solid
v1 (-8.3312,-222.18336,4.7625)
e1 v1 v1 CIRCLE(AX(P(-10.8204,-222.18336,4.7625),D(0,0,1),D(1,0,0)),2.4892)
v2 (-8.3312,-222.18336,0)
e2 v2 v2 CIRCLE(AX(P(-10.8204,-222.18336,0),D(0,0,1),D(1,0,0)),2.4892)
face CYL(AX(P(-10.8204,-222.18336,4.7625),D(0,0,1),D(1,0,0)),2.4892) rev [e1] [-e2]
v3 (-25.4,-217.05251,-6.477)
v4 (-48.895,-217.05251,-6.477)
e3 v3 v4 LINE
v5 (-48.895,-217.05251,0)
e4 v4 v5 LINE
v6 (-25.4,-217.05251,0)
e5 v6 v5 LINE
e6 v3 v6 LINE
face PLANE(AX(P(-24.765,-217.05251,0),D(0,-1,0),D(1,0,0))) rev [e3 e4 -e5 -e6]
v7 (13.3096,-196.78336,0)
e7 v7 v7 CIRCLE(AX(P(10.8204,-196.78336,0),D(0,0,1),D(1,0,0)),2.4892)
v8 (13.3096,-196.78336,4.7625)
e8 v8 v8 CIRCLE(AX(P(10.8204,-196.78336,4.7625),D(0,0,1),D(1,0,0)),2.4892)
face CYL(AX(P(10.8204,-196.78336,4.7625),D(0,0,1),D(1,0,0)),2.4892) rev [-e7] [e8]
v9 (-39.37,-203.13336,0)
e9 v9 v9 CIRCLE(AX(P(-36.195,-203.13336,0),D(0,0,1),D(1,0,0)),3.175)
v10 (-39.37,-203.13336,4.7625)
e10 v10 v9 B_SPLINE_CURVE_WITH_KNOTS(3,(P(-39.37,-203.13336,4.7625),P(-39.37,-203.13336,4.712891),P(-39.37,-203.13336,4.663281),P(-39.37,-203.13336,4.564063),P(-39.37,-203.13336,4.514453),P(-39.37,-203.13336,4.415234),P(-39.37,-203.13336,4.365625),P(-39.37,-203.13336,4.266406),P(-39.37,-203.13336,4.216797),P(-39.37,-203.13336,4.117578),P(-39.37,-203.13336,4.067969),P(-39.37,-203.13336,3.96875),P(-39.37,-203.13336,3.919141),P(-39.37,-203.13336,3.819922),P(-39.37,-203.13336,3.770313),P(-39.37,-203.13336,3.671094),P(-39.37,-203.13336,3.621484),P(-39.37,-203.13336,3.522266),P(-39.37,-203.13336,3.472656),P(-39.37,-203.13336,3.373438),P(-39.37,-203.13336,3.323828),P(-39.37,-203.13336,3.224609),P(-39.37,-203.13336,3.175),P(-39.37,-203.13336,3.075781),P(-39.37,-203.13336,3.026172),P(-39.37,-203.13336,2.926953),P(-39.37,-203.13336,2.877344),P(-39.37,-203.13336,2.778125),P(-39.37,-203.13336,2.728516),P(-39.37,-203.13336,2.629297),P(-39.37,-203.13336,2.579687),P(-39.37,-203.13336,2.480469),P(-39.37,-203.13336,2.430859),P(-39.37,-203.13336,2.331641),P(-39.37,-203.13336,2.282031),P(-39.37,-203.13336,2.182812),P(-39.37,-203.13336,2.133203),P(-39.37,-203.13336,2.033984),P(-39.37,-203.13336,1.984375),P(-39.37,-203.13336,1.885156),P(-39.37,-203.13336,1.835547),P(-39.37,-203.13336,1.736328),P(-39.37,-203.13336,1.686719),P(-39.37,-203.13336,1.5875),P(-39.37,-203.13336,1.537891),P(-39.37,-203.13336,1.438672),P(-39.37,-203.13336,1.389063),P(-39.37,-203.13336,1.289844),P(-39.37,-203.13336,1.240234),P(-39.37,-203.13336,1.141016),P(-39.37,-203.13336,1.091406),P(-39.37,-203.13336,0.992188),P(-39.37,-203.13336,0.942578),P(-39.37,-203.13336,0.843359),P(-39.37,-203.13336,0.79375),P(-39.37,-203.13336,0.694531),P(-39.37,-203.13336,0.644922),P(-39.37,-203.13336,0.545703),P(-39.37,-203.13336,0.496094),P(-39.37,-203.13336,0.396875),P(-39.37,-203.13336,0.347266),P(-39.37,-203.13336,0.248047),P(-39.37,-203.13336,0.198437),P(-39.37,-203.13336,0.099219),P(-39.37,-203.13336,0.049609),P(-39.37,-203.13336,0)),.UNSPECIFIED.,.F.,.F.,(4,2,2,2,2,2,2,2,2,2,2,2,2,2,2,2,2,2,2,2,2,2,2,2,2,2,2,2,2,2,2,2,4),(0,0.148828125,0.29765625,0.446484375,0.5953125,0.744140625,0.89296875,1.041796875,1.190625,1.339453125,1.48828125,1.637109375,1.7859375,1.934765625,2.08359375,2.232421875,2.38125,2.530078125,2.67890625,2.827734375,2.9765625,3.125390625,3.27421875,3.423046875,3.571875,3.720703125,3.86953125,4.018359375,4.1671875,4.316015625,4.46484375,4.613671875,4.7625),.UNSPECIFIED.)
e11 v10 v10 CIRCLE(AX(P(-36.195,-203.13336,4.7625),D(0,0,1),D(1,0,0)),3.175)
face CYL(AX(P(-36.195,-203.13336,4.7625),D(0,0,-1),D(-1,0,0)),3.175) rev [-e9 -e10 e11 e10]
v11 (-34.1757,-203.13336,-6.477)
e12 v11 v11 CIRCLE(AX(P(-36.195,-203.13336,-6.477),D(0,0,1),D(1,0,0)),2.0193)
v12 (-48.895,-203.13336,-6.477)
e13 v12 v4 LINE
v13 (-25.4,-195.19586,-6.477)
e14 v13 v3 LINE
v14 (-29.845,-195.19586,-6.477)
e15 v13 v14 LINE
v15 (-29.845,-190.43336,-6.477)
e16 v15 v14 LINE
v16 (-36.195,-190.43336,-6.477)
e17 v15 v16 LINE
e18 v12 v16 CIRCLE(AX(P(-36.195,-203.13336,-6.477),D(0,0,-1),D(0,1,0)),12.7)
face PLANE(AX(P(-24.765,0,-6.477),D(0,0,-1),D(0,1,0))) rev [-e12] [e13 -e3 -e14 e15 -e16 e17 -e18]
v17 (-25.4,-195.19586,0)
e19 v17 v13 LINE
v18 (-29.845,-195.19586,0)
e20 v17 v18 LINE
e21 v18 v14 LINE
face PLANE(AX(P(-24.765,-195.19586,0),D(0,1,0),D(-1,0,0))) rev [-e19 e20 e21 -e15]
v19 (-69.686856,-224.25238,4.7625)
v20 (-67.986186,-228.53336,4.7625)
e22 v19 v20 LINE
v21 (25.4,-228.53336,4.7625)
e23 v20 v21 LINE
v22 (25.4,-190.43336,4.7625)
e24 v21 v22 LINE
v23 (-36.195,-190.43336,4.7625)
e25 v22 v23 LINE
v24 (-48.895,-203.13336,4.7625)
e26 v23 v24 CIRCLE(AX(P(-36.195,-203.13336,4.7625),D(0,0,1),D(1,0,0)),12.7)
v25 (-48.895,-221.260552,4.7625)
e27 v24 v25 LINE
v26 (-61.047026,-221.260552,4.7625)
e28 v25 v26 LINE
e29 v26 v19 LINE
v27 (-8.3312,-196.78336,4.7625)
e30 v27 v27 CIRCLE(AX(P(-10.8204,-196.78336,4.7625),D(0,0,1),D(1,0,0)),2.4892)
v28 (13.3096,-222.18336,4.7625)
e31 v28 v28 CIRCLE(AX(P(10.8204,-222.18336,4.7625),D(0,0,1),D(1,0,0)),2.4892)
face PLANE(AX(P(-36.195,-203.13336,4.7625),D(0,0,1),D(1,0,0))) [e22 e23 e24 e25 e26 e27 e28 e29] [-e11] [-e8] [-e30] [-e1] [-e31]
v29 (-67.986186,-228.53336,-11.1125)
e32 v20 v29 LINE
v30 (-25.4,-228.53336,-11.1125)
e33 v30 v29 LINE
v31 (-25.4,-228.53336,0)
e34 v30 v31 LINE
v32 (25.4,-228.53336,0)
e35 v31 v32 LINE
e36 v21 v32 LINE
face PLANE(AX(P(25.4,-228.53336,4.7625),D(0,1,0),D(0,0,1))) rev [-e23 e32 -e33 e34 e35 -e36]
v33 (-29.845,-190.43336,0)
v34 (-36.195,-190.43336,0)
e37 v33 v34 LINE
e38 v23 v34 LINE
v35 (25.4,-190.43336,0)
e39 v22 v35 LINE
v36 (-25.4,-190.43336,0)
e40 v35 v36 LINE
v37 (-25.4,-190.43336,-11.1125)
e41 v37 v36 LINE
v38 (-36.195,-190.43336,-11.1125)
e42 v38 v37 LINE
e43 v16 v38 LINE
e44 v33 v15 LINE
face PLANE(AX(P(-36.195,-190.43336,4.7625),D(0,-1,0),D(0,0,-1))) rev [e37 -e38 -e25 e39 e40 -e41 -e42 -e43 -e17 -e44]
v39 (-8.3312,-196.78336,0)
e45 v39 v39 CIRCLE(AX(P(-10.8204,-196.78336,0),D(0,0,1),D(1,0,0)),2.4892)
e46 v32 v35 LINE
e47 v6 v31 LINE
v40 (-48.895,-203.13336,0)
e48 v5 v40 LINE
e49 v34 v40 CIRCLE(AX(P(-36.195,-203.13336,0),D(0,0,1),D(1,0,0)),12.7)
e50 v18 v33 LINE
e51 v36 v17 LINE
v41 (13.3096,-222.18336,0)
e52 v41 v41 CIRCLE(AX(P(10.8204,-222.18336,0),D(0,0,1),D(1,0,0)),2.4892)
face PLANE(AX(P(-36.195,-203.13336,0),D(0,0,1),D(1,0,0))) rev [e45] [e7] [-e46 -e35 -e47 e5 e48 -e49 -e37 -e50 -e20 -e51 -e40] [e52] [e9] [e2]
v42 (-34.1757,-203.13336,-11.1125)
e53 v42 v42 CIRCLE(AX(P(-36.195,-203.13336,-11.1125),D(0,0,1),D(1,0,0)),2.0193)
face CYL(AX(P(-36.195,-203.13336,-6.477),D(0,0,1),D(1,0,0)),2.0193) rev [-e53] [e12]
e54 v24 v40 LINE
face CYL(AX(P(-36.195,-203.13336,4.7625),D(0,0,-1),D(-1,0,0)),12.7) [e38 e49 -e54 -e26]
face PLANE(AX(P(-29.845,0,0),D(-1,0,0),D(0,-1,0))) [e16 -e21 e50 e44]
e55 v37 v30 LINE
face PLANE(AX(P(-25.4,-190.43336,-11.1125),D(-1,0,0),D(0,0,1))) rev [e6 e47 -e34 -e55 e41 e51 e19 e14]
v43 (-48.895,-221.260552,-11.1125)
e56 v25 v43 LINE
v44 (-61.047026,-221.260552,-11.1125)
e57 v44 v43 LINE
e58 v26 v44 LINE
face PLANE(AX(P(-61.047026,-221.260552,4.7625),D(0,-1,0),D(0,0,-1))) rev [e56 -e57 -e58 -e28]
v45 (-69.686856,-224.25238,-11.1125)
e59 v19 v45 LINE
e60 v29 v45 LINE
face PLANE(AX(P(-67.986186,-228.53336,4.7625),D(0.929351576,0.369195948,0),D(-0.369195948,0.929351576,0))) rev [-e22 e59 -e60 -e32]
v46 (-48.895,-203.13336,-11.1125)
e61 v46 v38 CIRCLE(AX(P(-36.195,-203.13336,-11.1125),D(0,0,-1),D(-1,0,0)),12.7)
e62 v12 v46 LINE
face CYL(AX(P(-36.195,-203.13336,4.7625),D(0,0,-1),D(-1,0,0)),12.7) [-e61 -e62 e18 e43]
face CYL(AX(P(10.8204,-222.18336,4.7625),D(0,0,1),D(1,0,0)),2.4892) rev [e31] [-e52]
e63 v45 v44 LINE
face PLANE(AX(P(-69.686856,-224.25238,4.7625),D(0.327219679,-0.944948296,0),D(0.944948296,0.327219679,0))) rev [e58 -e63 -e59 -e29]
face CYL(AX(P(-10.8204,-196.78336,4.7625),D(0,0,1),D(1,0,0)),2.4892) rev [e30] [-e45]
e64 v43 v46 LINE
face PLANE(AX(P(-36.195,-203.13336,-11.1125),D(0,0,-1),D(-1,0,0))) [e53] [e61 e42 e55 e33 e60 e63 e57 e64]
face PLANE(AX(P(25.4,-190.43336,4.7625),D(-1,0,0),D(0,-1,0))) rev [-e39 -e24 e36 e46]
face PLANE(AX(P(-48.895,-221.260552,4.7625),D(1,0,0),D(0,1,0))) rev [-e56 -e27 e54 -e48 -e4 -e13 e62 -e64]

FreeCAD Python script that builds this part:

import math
import FreeCAD as App
import Part
import Sketcher

V = App.Vector
Q = App.Units.Quantity


def add_polygon(sketch, points):
    """Adds a closed chain of lines whose ends are joined by coincident constraints."""
    first, n = sketch.GeometryCount, len(points)
    for a, b in zip(points, points[1:] + points[:1]):
        sketch.addGeometry(Part.LineSegment(App.Vector(*a, 0), App.Vector(*b, 0)), False)
    for i in range(n):
        sketch.addConstraint(Sketcher.Constraint("Coincident", first + i, 2, first + (i + 1) % n, 1))

doc = App.newDocument("Part")
params = doc.addObject("Spreadsheet::Sheet", "Params")
for row, (alias, value) in enumerate([
    ("sketch1_radius", "0.5 in"),
    ("sketch1_diameter", "0.25 in"),
    ("sketch1_height", "1.5 in"),
    ("sketch1_width", "2.425 in"),
    ("pad1_length", "0.1875 in"),
    ("sketch2_radius", "0.5 in"),
    ("sketch2_height", "1.5 in"),
    ("sketch2_width", "0.425 in"),
    ("pad2_length", "0.4375 in"),
    ("sketch3_height", "0.255 in"),
    ("pocket1_length", "0.95 in"),
    ("sketch4_width", "0.1875 in"),
    ("sketch4_height", "0.255 in"),
    ("pocket2_length", "0.75 in"),
    ("sketch5_diameter", "0.159 in"),
    ("hole_diameter", "0.159 in"),
    ("sketch6_diameter", "0.196 in"),
    ("hole2_diameter", "0.196 in"),
], start=1):
    params.set(f"A{row}", alias)
    params.set(f"B{row}", "=" + value)
    params.setAlias(f"B{row}", alias)

body = doc.addObject("PartDesign::Body", "Body")

# Sketch on XY plane
sketch1 = doc.addObject("Sketcher::SketchObject", "Sketch")
body.addObject(sketch1)
sketch1.AttachmentSupport = (doc.XY_Plane, [""])
sketch1.MapMode = "FlatFace"
sketch1.addGeometry(Part.LineSegment(V(-69.686856, -224.25238, 0), V(-67.986186, -228.53336, 0)), False)
sketch1.addGeometry(Part.LineSegment(V(-67.986186, -228.53336, 0), V(25.4, -228.53336, 0)), False)
sketch1.addGeometry(Part.LineSegment(V(25.4, -228.53336, 0), V(25.4, -190.43336, 0)), False)
sketch1.addGeometry(Part.LineSegment(V(25.4, -190.43336, 0), V(-36.195, -190.43336, 0)), False)
sketch1.addGeometry(Part.ArcOfCircle(Part.Circle(V(-36.195, -203.13336, 0), V(0, 0, 1), 12.7), math.radians(90), math.radians(180)), False)
sketch1.addGeometry(Part.LineSegment(V(-48.895, -203.13336, 0), V(-48.895, -221.260552, 0)), False)
sketch1.addGeometry(Part.LineSegment(V(-48.895, -221.260552, 0), V(-61.047026, -221.260552, 0)), False)
sketch1.addGeometry(Part.LineSegment(V(-61.047026, -221.260552, 0), V(-69.686856, -224.25238, 0)), False)
sketch1.addGeometry(Part.Circle(V(-36.195, -203.13336, 0), V(0, 0, 1), 3.175), False)
sketch1.addConstraint(Sketcher.Constraint("Coincident", 0, 2, 1, 1))
sketch1.addConstraint(Sketcher.Constraint("Coincident", 1, 2, 2, 1))
sketch1.addConstraint(Sketcher.Constraint("Coincident", 2, 2, 3, 1))
sketch1.addConstraint(Sketcher.Constraint("Tangent", 3, 2, 4, 1))
sketch1.addConstraint(Sketcher.Constraint("Tangent", 4, 2, 5, 1))
sketch1.addConstraint(Sketcher.Constraint("Coincident", 5, 2, 6, 1))
sketch1.addConstraint(Sketcher.Constraint("Coincident", 6, 2, 7, 1))
sketch1.addConstraint(Sketcher.Constraint("Coincident", 7, 2, 0, 1))
sketch1.addConstraint(Sketcher.Constraint("Horizontal", 1))
sketch1.addConstraint(Sketcher.Constraint("Vertical", 2))
sketch1.addConstraint(Sketcher.Constraint("Horizontal", 3))
sketch1.addConstraint(Sketcher.Constraint("Vertical", 5))
sketch1.addConstraint(Sketcher.Constraint("Horizontal", 6))
sketch1.addConstraint(Sketcher.Constraint("Coincident", 8, 3, 4, 3))
sketch1.addConstraint(Sketcher.Constraint("Radius", 4, Q("0.5 in")))
sketch1.addConstraint(Sketcher.Constraint("Diameter", 8, Q("0.25 in")))
sketch1.addConstraint(Sketcher.Constraint("DistanceY", 2, 1, 2, 2, Q("1.5 in")))
sketch1.addConstraint(Sketcher.Constraint("DistanceX", -1, 1, 1, 2, Q("1 in")))
sketch1.addConstraint(Sketcher.Constraint("DistanceX", 3, 2, 3, 1, Q("2.425 in")))
sketch1.addConstraint(Sketcher.Constraint("Distance", 7, Q("9.143178 mm")))
sketch1.addConstraint(Sketcher.Constraint("DistanceX", 1, 1, 1, 2, Q("93.386186 mm")))
sketch1.addConstraint(Sketcher.Constraint("DistanceX", 6, 2, 6, 1, Q("12.152026 mm")))
sketch1.addConstraint(Sketcher.Constraint("DistanceY", 5, 2, 5, 1, Q("18.127192 mm")))
sketch1.addConstraint(Sketcher.Constraint("DistanceY", 4, 3, -1, 1, Q("203.13336 mm")))
sketch1.addConstraint(Sketcher.Constraint("DistanceY", 7, 2, -1, 1, Q("224.25238 mm")))
sketch1.setExpression("Constraints[14]", "Params.sketch1_radius")
sketch1.setExpression("Constraints[15]", "Params.sketch1_diameter")
sketch1.setExpression("Constraints[16]", "Params.sketch1_height")
sketch1.setExpression("Constraints[18]", "Params.sketch1_width")
pad1 = doc.addObject("PartDesign::Pad", "Pad")
body.addObject(pad1)
pad1.Profile = sketch1
pad1.setExpression("Length", "Params.pad1_length")

# Sketch on XY plane
sketch2 = doc.addObject("Sketcher::SketchObject", "Sketch001")
body.addObject(sketch2)
sketch2.AttachmentSupport = (doc.XY_Plane, [""])
sketch2.MapMode = "FlatFace"
sketch2.AttachmentOffset = App.Placement(V(0, 0, -0.4375 * 25.4), App.Rotation())
sketch2.addGeometry(Part.LineSegment(V(-25.4, -190.43336, 0), V(-25.4, -228.53336, 0)), False)
sketch2.addGeometry(Part.LineSegment(V(-25.4, -228.53336, 0), V(-67.986186, -228.53336, 0)), False)
sketch2.addGeometry(Part.LineSegment(V(-67.986186, -228.53336, 0), V(-69.686856, -224.25238, 0)), False)
sketch2.addGeometry(Part.LineSegment(V(-69.686856, -224.25238, 0), V(-61.047026, -221.260552, 0)), False)
sketch2.addGeometry(Part.LineSegment(V(-61.047026, -221.260552, 0), V(-48.895, -221.260552, 0)), False)
sketch2.addGeometry(Part.LineSegment(V(-48.895, -221.260552, 0), V(-48.895, -203.13336, 0)), False)
sketch2.addGeometry(Part.ArcOfCircle(Part.Circle(V(-36.195, -203.13336, 0), V(0, 0, 1), 12.7), math.radians(90), math.radians(180)), False)
sketch2.addGeometry(Part.LineSegment(V(-36.195, -190.43336, 0), V(-25.4, -190.43336, 0)), False)
sketch2.addConstraint(Sketcher.Constraint("Coincident", 0, 2, 1, 1))
sketch2.addConstraint(Sketcher.Constraint("Coincident", 1, 2, 2, 1))
sketch2.addConstraint(Sketcher.Constraint("Coincident", 2, 2, 3, 1))
sketch2.addConstraint(Sketcher.Constraint("Coincident", 3, 2, 4, 1))
sketch2.addConstraint(Sketcher.Constraint("Coincident", 4, 2, 5, 1))
sketch2.addConstraint(Sketcher.Constraint("Tangent", 5, 2, 6, 2))
sketch2.addConstraint(Sketcher.Constraint("Tangent", 6, 1, 7, 1))
sketch2.addConstraint(Sketcher.Constraint("Coincident", 7, 2, 0, 1))
sketch2.addConstraint(Sketcher.Constraint("Vertical", 0))
sketch2.addConstraint(Sketcher.Constraint("Horizontal", 1))
sketch2.addConstraint(Sketcher.Constraint("Horizontal", 4))
sketch2.addConstraint(Sketcher.Constraint("Vertical", 5))
sketch2.addConstraint(Sketcher.Constraint("Horizontal", 7))
sketch2.addConstraint(Sketcher.Constraint("Radius", 6, Q("0.5 in")))
sketch2.addConstraint(Sketcher.Constraint("DistanceY", 0, 2, 0, 1, Q("1.5 in")))
sketch2.addConstraint(Sketcher.Constraint("DistanceX", 0, 2, -1, 1, Q("1 in")))
sketch2.addConstraint(Sketcher.Constraint("DistanceX", 7, 1, 7, 2, Q("0.425 in")))
sketch2.addConstraint(Sketcher.Constraint("Distance", 3, Q("9.143178 mm")))
sketch2.addConstraint(Sketcher.Constraint("DistanceX", 1, 2, 1, 1, Q("42.586186 mm")))
sketch2.addConstraint(Sketcher.Constraint("DistanceX", 4, 1, 4, 2, Q("12.152026 mm")))
sketch2.addConstraint(Sketcher.Constraint("DistanceY", 5, 1, 5, 2, Q("18.127192 mm")))
sketch2.addConstraint(Sketcher.Constraint("DistanceY", 6, 3, -1, 1, Q("203.13336 mm")))
sketch2.addConstraint(Sketcher.Constraint("DistanceY", 2, 2, -1, 1, Q("224.25238 mm")))
sketch2.setExpression("Constraints[13]", "Params.sketch2_radius")
sketch2.setExpression("Constraints[14]", "Params.sketch2_height")
sketch2.setExpression("Constraints[16]", "Params.sketch2_width")
pad2 = doc.addObject("PartDesign::Pad", "Pad001")
body.addObject(pad2)
pad2.Profile = sketch2
pad2.setExpression("Length", "Params.pad2_length")

# Sketch on YZ plane
sketch3 = doc.addObject("Sketcher::SketchObject", "Sketch002")
body.addObject(sketch3)
sketch3.AttachmentSupport = (doc.YZ_Plane, [""])
sketch3.MapMode = "FlatFace"
sketch3.AttachmentOffset = App.Placement(V(0, 0, -1.925 * 25.4), App.Rotation())
add_polygon(sketch3, [(-217.05251, -6.477), (-217.05251, 0), (-195.19586, 0), (-195.19586, -6.477)])  # lines 0-3
sketch3.addConstraint(Sketcher.Constraint("Vertical", 0))
sketch3.addConstraint(Sketcher.Constraint("Horizontal", 1))
sketch3.addConstraint(Sketcher.Constraint("Vertical", 2))
sketch3.addConstraint(Sketcher.Constraint("Horizontal", 3))
sketch3.addConstraint(Sketcher.Constraint("PointOnObject", 0, 2, -1))
sketch3.addConstraint(Sketcher.Constraint("DistanceY", 0, 1, 0, 2, Q("0.255 in")))
sketch3.addConstraint(Sketcher.Constraint("DistanceX", 1, 1, 1, 2, Q("21.856651 mm")))
sketch3.addConstraint(Sketcher.Constraint("DistanceX", 0, 2, -1, 1, Q("217.05251 mm")))
sketch3.setExpression("Constraints[9]", "Params.sketch3_height")
pocket1 = doc.addObject("PartDesign::Pocket", "Pocket")
body.addObject(pocket1)
pocket1.Profile = sketch3
pocket1.setExpression("Length", "Params.pocket1_length")
pocket1.Reversed = True

# Sketch on YZ plane
sketch4 = doc.addObject("Sketcher::SketchObject", "Sketch003")
body.addObject(sketch4)
sketch4.AttachmentSupport = (doc.YZ_Plane, [""])
sketch4.MapMode = "FlatFace"
sketch4.AttachmentOffset = App.Placement(V(0, 0, -1.925 * 25.4), App.Rotation())
add_polygon(sketch4, [(-190.43336, -6.477), (-195.19586, -6.477), (-195.19586, 0), (-190.43336, 0)])  # lines 0-3
sketch4.addConstraint(Sketcher.Constraint("Horizontal", 0))
sketch4.addConstraint(Sketcher.Constraint("Vertical", 1))
sketch4.addConstraint(Sketcher.Constraint("Horizontal", 2))
sketch4.addConstraint(Sketcher.Constraint("Vertical", 3))
sketch4.addConstraint(Sketcher.Constraint("PointOnObject", 1, 2, -1))
sketch4.addConstraint(Sketcher.Constraint("DistanceX", 0, 2, 0, 1, Q("0.1875 in")))
sketch4.addConstraint(Sketcher.Constraint("DistanceY", 1, 1, 1, 2, Q("0.255 in")))
sketch4.addConstraint(Sketcher.Constraint("DistanceX", 0, 2, -1, 1, Q("195.19586 mm")))
sketch4.setExpression("Constraints[9]", "Params.sketch4_width")
sketch4.setExpression("Constraints[10]", "Params.sketch4_height")
pocket2 = doc.addObject("PartDesign::Pocket", "Pocket001")
body.addObject(pocket2)
pocket2.Profile = sketch4
pocket2.setExpression("Length", "Params.pocket2_length")
pocket2.Reversed = True

# Sketch on XY plane
sketch5 = doc.addObject("Sketcher::SketchObject", "Sketch004")
body.addObject(sketch5)
sketch5.AttachmentSupport = (doc.XY_Plane, [""])
sketch5.MapMode = "FlatFace"
sketch5.AttachmentOffset = App.Placement(V(0, 0, -0.255 * 25.4), App.Rotation())
sketch5.addGeometry(Part.Circle(V(-36.195, -203.13336, 0), V(0, 0, 1), 2.0193), False)
sketch5.addConstraint(Sketcher.Constraint("Diameter", 0, Q("0.159 in")))
sketch5.addConstraint(Sketcher.Constraint("DistanceX", 0, 3, -1, 1, Q("1.425 in")))
sketch5.addConstraint(Sketcher.Constraint("DistanceY", 0, 3, -1, 1, Q("203.13336 mm")))
sketch5.setExpression("Constraints[0]", "Params.sketch5_diameter")
doc.recompute()
hole = doc.addObject("PartDesign::Hole", "Hole")
body.addObject(hole)
hole.Profile = sketch5
hole.ThreadType = "None"
hole.setExpression("Diameter", "Params.hole_diameter")
hole.DepthType = "ThroughAll"

# Sketch on XY plane
sketch6 = doc.addObject("Sketcher::SketchObject", "Sketch005")
body.addObject(sketch6)
sketch6.AttachmentSupport = (doc.XY_Plane, [""])
sketch6.MapMode = "FlatFace"
sketch6.AttachmentOffset = App.Placement(V(0, 0, 0.1875 * 25.4), App.Rotation())
sketch6.addGeometry(Part.Circle(V(-10.8204, -196.78336, 0), V(0, 0, 1), 2.4892), False)
sketch6.addGeometry(Part.Circle(V(-10.8204, -222.18336, 0), V(0, 0, 1), 2.4892), False)
sketch6.addGeometry(Part.Circle(V(10.8204, -222.18336, 0), V(0, 0, 1), 2.4892), False)
sketch6.addGeometry(Part.Circle(V(10.8204, -196.78336, 0), V(0, 0, 1), 2.4892), False)
sketch6.addConstraint(Sketcher.Constraint("Equal", 0, 1))
sketch6.addConstraint(Sketcher.Constraint("Equal", 1, 2))
sketch6.addConstraint(Sketcher.Constraint("Equal", 2, 3))
sketch6.addConstraint(Sketcher.Constraint("Symmetric", 1, 3, 2, 3, -2))
sketch6.addConstraint(Sketcher.Constraint("Symmetric", 0, 3, 3, 3, -2))
sketch6.addConstraint(Sketcher.Constraint("Vertical", 0, 3, 1, 3))
sketch6.addConstraint(Sketcher.Constraint("Diameter", 0, Q("0.196 in")))
sketch6.addConstraint(Sketcher.Constraint("DistanceY", 1, 3, 0, 3, Q("1 in")))
sketch6.addConstraint(Sketcher.Constraint("DistanceX", 0, 3, -1, 1, Q("0.426 in")))
sketch6.addConstraint(Sketcher.Constraint("DistanceY", 0, 3, -1, 1, Q("196.78336 mm")))
sketch6.setExpression("Constraints[6]", "Params.sketch6_diameter")
doc.recompute()
hole2 = doc.addObject("PartDesign::Hole", "Hole001")
body.addObject(hole2)
hole2.Profile = sketch6
hole2.ThreadType = "None"
hole2.setExpression("Diameter", "Params.hole2_diameter")
hole2.DepthType = "ThroughAll"

doc.recompute()
